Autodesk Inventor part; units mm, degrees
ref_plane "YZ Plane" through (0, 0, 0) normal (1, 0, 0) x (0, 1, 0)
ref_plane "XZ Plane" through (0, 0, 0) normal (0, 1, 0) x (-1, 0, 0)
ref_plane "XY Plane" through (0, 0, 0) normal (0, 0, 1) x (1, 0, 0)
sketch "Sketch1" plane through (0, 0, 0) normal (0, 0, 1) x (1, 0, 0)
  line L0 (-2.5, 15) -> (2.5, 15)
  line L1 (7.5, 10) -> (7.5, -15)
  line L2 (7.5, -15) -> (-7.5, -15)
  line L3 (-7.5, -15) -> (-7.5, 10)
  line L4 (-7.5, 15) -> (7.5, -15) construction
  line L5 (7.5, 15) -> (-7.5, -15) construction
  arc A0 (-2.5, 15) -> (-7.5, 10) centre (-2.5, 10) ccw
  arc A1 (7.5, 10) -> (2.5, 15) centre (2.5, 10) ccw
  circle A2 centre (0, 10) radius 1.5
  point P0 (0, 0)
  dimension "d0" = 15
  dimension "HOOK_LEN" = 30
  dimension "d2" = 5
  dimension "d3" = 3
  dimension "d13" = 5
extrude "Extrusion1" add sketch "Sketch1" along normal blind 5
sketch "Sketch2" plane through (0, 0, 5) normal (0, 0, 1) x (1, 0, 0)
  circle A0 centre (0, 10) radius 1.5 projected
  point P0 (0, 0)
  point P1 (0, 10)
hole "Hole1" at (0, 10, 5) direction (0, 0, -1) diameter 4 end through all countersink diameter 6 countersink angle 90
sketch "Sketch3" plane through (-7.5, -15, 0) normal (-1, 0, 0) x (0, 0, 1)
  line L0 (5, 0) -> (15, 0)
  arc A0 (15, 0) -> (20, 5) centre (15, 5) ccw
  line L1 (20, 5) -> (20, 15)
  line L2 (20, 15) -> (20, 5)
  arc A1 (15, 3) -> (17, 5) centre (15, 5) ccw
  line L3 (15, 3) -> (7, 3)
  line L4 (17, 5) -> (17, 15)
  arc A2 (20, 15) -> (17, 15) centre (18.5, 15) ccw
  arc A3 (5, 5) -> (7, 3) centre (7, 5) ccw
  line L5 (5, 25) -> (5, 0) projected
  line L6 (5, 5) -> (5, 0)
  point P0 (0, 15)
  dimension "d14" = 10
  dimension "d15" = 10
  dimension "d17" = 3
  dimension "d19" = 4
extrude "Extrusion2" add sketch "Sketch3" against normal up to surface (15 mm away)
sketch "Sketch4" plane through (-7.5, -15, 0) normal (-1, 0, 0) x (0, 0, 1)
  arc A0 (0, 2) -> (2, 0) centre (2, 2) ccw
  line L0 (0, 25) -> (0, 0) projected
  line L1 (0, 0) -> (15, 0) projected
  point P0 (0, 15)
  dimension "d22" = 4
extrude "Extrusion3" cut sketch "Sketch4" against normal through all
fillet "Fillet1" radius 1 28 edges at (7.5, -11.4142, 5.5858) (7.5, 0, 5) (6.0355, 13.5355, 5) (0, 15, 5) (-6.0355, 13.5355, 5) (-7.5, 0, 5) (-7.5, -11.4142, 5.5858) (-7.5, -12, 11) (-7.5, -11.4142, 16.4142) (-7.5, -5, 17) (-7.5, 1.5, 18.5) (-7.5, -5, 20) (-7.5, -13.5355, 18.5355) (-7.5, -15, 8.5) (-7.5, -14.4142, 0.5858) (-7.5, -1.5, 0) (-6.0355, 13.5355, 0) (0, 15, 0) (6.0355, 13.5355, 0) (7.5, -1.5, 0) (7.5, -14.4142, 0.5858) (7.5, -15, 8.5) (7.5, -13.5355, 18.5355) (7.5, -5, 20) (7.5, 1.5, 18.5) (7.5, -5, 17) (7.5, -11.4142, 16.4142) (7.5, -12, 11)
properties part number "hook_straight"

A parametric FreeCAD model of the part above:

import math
import FreeCAD as App
import Part
import Sketcher
Q = App.Units.Quantity


def edges_at(feature, points):
    """Names of the edges that pass closest to the given points."""
    edges = feature.Shape.Edges
    near = lambda p: min(range(len(edges)), key=lambda i: edges[i].distToShape(Part.Vertex(*p))[0])
    return sorted({f"Edge{near(p) + 1}" for p in points})

doc = App.newDocument("Part")
params = doc.addObject("Spreadsheet::Sheet", "Params")
for row, (alias, value) in enumerate([
    ("sketch1_diameter", "3 mm"),
    ("sketch1_radius", "5 mm"),
    ("sketch1_width", "5 mm"),
    ("pad1_length", "5 mm"),
    ("sketch2_diameter", "4 mm"),
    ("hole_diameter", "4 mm"),
    ("hole_csink_diameter", "6 mm"),
    ("sketch3_radius", "5 mm"),
    ("sketch3_radius2", "2 mm"),
    ("sketch3_width", "10 mm"),
    ("pad2_length", "15 mm"),
    ("sketch4_radius", "2 mm"),
    ("fillet_radius", "1 mm"),
], start=1):
    params.set(f"A{row}", alias)
    params.set(f"B{row}", "=" + value)
    params.setAlias(f"B{row}", alias)

body = doc.addObject("PartDesign::Body", "Body")

sketch1 = doc.addObject("Sketcher::SketchObject", "Sketch")
body.addObject(sketch1)
sketch1.AttachmentSupport = (doc.XY_Plane, [""])
sketch1.MapMode = "FlatFace"
sketch1.addGeometry(Part.LineSegment(App.Vector(2.5, 15, 0), App.Vector(-2.5, 15, 0)), False)
sketch1.addGeometry(Part.ArcOfCircle(Part.Circle(App.Vector(-2.5, 10, 0), App.Vector(0, 0, 1), 5), math.radians(90), math.radians(180)), False)
sketch1.addGeometry(Part.LineSegment(App.Vector(-7.5, 10, 0), App.Vector(-7.5, -15, 0)), False)
sketch1.addGeometry(Part.LineSegment(App.Vector(-7.5, -15, 0), App.Vector(7.5, -15, 0)), False)
sketch1.addGeometry(Part.LineSegment(App.Vector(7.5, -15, 0), App.Vector(7.5, 10, 0)), False)
sketch1.addGeometry(Part.ArcOfCircle(Part.Circle(App.Vector(2.5, 10, 0), App.Vector(0, 0, 1), 5), math.radians(0), math.radians(90)), False)
sketch1.addGeometry(Part.Circle(App.Vector(0, 10, 0), App.Vector(0, 0, 1), 1.5), False)
sketch1.addConstraint(Sketcher.Constraint("Tangent", 0, 2, 1, 1))
sketch1.addConstraint(Sketcher.Constraint("Tangent", 1, 2, 2, 1))
sketch1.addConstraint(Sketcher.Constraint("Coincident", 2, 2, 3, 1))
sketch1.addConstraint(Sketcher.Constraint("Coincident", 3, 2, 4, 1))
sketch1.addConstraint(Sketcher.Constraint("Tangent", 4, 2, 5, 1))
sketch1.addConstraint(Sketcher.Constraint("Tangent", 5, 2, 0, 1))
sketch1.addConstraint(Sketcher.Constraint("Horizontal", 0))
sketch1.addConstraint(Sketcher.Constraint("Vertical", 2))
sketch1.addConstraint(Sketcher.Constraint("Horizontal", 3))
sketch1.addConstraint(Sketcher.Constraint("Vertical", 4))
sketch1.addConstraint(Sketcher.Constraint("Equal", 1, 5))
sketch1.addConstraint(Sketcher.Constraint("PointOnObject", 6, 3, -2))
sketch1.addConstraint(Sketcher.Constraint("Horizontal", 5, 3, 6, 3))
sketch1.addConstraint(Sketcher.Constraint("Diameter", 6, Q("3 mm")))
sketch1.addConstraint(Sketcher.Constraint("Radius", 1, Q("5 mm")))
sketch1.addConstraint(Sketcher.Constraint("DistanceX", 0, 2, 0, 1, Q("5 mm")))
sketch1.addConstraint(Sketcher.Constraint("DistanceY", -1, 1, 0, 2, Q("15 mm")))
sketch1.addConstraint(Sketcher.Constraint("DistanceY", 2, 2, -1, 1, Q("15 mm")))
sketch1.addConstraint(Sketcher.Constraint("DistanceX", 1, 3, -1, 1, Q("2.5 mm")))
sketch1.setExpression("Constraints[13]", "Params.sketch1_diameter")
sketch1.setExpression("Constraints[14]", "Params.sketch1_radius")
sketch1.setExpression("Constraints[15]", "Params.sketch1_width")
pad1 = doc.addObject("PartDesign::Pad", "Pad")
body.addObject(pad1)
pad1.Profile = sketch1
pad1.setExpression("Length", "Params.pad1_length")

sketch2 = doc.addObject("Sketcher::SketchObject", "Sketch001")
body.addObject(sketch2)
sketch2.AttachmentSupport = (doc.XY_Plane, [""])
sketch2.MapMode = "FlatFace"
sketch2.AttachmentOffset = App.Placement(App.Vector(0, 0, 5), App.Rotation())
sketch2.addGeometry(Part.Circle(App.Vector(0, 10, 0), App.Vector(0, 0, 1), 2), False)
sketch2.addConstraint(Sketcher.Constraint("PointOnObject", 0, 3, -2))
sketch2.addConstraint(Sketcher.Constraint("Diameter", 0, Q("4 mm")))
sketch2.addConstraint(Sketcher.Constraint("DistanceY", -1, 1, 0, 3, Q("10 mm")))
sketch2.setExpression("Constraints[1]", "Params.sketch2_diameter")
doc.recompute()
hole = doc.addObject("PartDesign::Hole", "Hole")
body.addObject(hole)
hole.Profile = sketch2
hole.ThreadType = "None"
hole.setExpression("Diameter", "Params.hole_diameter")
hole.DepthType = "ThroughAll"
hole.HoleCutType = "Countersink"
hole.setExpression("HoleCutDiameter", "Params.hole_csink_diameter")
hole.HoleCutCountersinkAngle = 90

sketch3 = doc.addObject("Sketcher::SketchObject", "Sketch002")
body.addObject(sketch3)
sketch3.AttachmentSupport = (doc.YZ_Plane, [""])
sketch3.MapMode = "FlatFace"
sketch3.AttachmentOffset = App.Placement(App.Vector(0, 0, -7.5), App.Rotation())
sketch3.addGeometry(Part.LineSegment(App.Vector(-10, 5, 0), App.Vector(-15, 5, 0)), False)
sketch3.addGeometry(Part.LineSegment(App.Vector(-15, 5, 0), App.Vector(-15, 15, 0)), False)
sketch3.addGeometry(Part.ArcOfCircle(Part.Circle(App.Vector(-10, 15, 0), App.Vector(0, 0, 1), 5), math.radians(90), math.radians(180)), False)
sketch3.addGeometry(Part.LineSegment(App.Vector(-10, 20, 0), App.Vector(0, 20, 0)), False)
sketch3.addGeometry(Part.ArcOfCircle(Part.Circle(App.Vector(0, 18.5, 0), App.Vector(0, 0, 1), 1.5), math.radians(-90), math.radians(90)), False)
sketch3.addGeometry(Part.LineSegment(App.Vector(0, 17, 0), App.Vector(-10, 17, 0)), False)
sketch3.addGeometry(Part.ArcOfCircle(Part.Circle(App.Vector(-10, 15, 0), App.Vector(0, 0, 1), 2), math.radians(90), math.radians(180)), False)
sketch3.addGeometry(Part.LineSegment(App.Vector(-12, 15, 0), App.Vector(-12, 7, 0)), False)
sketch3.addGeometry(Part.ArcOfCircle(Part.Circle(App.Vector(-10, 7, 0), App.Vector(0, 0, 1), 2), math.radians(180), math.radians(270)), False)
sketch3.addConstraint(Sketcher.Constraint("Coincident", 0, 2, 1, 1))
sketch3.addConstraint(Sketcher.Constraint("Tangent", 1, 2, 2, 2))
sketch3.addConstraint(Sketcher.Constraint("Tangent", 2, 1, 3, 1))
sketch3.addConstraint(Sketcher.Constraint("Tangent", 3, 2, 4, 2))
sketch3.addConstraint(Sketcher.Constraint("Tangent", 4, 1, 5, 1))
sketch3.addConstraint(Sketcher.Constraint("Tangent", 5, 2, 6, 1))
sketch3.addConstraint(Sketcher.Constraint("Tangent", 6, 2, 7, 1))
sketch3.addConstraint(Sketcher.Constraint("Tangent", 7, 2, 8, 1))
sketch3.addConstraint(Sketcher.Constraint("Tangent", 8, 2, 0, 1))
sketch3.addConstraint(Sketcher.Constraint("Horizontal", 0))
sketch3.addConstraint(Sketcher.Constraint("Vertical", 1))
sketch3.addConstraint(Sketcher.Constraint("Horizontal", 3))
sketch3.addConstraint(Sketcher.Constraint("Horizontal", 5))
sketch3.addConstraint(Sketcher.Constraint("Vertical", 7))
sketch3.addConstraint(Sketcher.Constraint("Coincident", 6, 3, 2, 3))
sketch3.addConstraint(Sketcher.Constraint("Equal", 6, 8))
sketch3.addConstraint(Sketcher.Constraint("PointOnObject", 4, 3, -2))
sketch3.addConstraint(Sketcher.Constraint("Equal", 5, 1))
sketch3.addConstraint(Sketcher.Constraint("Radius", 2, Q("5 mm")))
sketch3.addConstraint(Sketcher.Constraint("Radius", 6, Q("2 mm")))
sketch3.addConstraint(Sketcher.Constraint("DistanceX", 3, 1, 3, 2, Q("10 mm")))
sketch3.addConstraint(Sketcher.Constraint("DistanceY", -1, 1, 2, 3, Q("15 mm")))
sketch3.setExpression("Constraints[18]", "Params.sketch3_radius")
sketch3.setExpression("Constraints[19]", "Params.sketch3_radius2")
sketch3.setExpression("Constraints[20]", "Params.sketch3_width")
pad2 = doc.addObject("PartDesign::Pad", "Pad001")
body.addObject(pad2)
pad2.Profile = sketch3
pad2.setExpression("Length", "Params.pad2_length")

sketch4 = doc.addObject("Sketcher::SketchObject", "Sketch003")
body.addObject(sketch4)
sketch4.AttachmentSupport = (doc.YZ_Plane, [""])
sketch4.MapMode = "FlatFace"
sketch4.AttachmentOffset = App.Placement(App.Vector(0, 0, -7.5), App.Rotation())
sketch4.addGeometry(Part.ArcOfCircle(Part.Circle(App.Vector(-13, 2, 0), App.Vector(0, 0, 1), 2), math.radians(180), math.radians(270)), False)
sketch4.addGeometry(Part.LineSegment(App.Vector(-13, 0, 0), App.Vector(-15, 0, 0)), False)
sketch4.addGeometry(Part.LineSegment(App.Vector(-15, 0, 0), App.Vector(-15, 2, 0)), False)
sketch4.addConstraint(Sketcher.Constraint("Tangent", 0, 2, 1, 1))
sketch4.addConstraint(Sketcher.Constraint("Coincident", 1, 2, 2, 1))
sketch4.addConstraint(Sketcher.Constraint("Tangent", 2, 2, 0, 1))
sketch4.addConstraint(Sketcher.Constraint("Horizontal", 1))
sketch4.addConstraint(Sketcher.Constraint("Vertical", 2))
sketch4.addConstraint(Sketcher.Constraint("PointOnObject", 0, 2, -1))
sketch4.addConstraint(Sketcher.Constraint("Radius", 0, Q("2 mm")))
sketch4.addConstraint(Sketcher.Constraint("DistanceX", 0, 3, -1, 1, Q("13 mm")))
sketch4.setExpression("Constraints[6]", "Params.sketch4_radius")
pocket1 = doc.addObject("PartDesign::Pocket", "Pocket")
body.addObject(pocket1)
pocket1.Profile = sketch4
pocket1.Type = "ThroughAll"
pocket1.Reversed = True
doc.recompute()

fillet = doc.addObject("PartDesign::Fillet", "Fillet")
body.addObject(fillet)
fillet.Base = (pocket1, edges_at(pocket1, [
    (7.5, -11.414, 5.586),
    (7.5, 0, 5),
    (6.035, 13.536, 5),
    (0, 15, 5),
    (-6.035, 13.536, 5),
    (-7.5, 0, 5),
    (-7.5, -11.414, 5.586),
    (-7.5, -12, 11),
    (-7.5, -11.414, 16.414),
    (-7.5, -5, 17),
    (-7.5, 1.5, 18.5),
    (-7.5, -5, 20),
    (-7.5, -13.536, 18.535),
    (-7.5, -15, 8.5),
    (-7.5, -14.414, 0.586),
    (-7.5, -1.5, 0),
    (-6.035, 13.536, 0),
    (0, 15, 0),
    (6.035, 13.536, 0),
    (7.5, -1.5, 0),
    (7.5, -14.414, 0.586),
    (7.5, -15, 8.5),
    (7.5, -13.536, 18.535),
    (7.5, -5, 20),
    (7.5, 1.5, 18.5),
    (7.5, -5, 17),
    (7.5, -11.414, 16.414),
    (7.5, -12, 11),
]))
fillet.setExpression("Radius", "Params.fillet_radius")

doc.recompute()
